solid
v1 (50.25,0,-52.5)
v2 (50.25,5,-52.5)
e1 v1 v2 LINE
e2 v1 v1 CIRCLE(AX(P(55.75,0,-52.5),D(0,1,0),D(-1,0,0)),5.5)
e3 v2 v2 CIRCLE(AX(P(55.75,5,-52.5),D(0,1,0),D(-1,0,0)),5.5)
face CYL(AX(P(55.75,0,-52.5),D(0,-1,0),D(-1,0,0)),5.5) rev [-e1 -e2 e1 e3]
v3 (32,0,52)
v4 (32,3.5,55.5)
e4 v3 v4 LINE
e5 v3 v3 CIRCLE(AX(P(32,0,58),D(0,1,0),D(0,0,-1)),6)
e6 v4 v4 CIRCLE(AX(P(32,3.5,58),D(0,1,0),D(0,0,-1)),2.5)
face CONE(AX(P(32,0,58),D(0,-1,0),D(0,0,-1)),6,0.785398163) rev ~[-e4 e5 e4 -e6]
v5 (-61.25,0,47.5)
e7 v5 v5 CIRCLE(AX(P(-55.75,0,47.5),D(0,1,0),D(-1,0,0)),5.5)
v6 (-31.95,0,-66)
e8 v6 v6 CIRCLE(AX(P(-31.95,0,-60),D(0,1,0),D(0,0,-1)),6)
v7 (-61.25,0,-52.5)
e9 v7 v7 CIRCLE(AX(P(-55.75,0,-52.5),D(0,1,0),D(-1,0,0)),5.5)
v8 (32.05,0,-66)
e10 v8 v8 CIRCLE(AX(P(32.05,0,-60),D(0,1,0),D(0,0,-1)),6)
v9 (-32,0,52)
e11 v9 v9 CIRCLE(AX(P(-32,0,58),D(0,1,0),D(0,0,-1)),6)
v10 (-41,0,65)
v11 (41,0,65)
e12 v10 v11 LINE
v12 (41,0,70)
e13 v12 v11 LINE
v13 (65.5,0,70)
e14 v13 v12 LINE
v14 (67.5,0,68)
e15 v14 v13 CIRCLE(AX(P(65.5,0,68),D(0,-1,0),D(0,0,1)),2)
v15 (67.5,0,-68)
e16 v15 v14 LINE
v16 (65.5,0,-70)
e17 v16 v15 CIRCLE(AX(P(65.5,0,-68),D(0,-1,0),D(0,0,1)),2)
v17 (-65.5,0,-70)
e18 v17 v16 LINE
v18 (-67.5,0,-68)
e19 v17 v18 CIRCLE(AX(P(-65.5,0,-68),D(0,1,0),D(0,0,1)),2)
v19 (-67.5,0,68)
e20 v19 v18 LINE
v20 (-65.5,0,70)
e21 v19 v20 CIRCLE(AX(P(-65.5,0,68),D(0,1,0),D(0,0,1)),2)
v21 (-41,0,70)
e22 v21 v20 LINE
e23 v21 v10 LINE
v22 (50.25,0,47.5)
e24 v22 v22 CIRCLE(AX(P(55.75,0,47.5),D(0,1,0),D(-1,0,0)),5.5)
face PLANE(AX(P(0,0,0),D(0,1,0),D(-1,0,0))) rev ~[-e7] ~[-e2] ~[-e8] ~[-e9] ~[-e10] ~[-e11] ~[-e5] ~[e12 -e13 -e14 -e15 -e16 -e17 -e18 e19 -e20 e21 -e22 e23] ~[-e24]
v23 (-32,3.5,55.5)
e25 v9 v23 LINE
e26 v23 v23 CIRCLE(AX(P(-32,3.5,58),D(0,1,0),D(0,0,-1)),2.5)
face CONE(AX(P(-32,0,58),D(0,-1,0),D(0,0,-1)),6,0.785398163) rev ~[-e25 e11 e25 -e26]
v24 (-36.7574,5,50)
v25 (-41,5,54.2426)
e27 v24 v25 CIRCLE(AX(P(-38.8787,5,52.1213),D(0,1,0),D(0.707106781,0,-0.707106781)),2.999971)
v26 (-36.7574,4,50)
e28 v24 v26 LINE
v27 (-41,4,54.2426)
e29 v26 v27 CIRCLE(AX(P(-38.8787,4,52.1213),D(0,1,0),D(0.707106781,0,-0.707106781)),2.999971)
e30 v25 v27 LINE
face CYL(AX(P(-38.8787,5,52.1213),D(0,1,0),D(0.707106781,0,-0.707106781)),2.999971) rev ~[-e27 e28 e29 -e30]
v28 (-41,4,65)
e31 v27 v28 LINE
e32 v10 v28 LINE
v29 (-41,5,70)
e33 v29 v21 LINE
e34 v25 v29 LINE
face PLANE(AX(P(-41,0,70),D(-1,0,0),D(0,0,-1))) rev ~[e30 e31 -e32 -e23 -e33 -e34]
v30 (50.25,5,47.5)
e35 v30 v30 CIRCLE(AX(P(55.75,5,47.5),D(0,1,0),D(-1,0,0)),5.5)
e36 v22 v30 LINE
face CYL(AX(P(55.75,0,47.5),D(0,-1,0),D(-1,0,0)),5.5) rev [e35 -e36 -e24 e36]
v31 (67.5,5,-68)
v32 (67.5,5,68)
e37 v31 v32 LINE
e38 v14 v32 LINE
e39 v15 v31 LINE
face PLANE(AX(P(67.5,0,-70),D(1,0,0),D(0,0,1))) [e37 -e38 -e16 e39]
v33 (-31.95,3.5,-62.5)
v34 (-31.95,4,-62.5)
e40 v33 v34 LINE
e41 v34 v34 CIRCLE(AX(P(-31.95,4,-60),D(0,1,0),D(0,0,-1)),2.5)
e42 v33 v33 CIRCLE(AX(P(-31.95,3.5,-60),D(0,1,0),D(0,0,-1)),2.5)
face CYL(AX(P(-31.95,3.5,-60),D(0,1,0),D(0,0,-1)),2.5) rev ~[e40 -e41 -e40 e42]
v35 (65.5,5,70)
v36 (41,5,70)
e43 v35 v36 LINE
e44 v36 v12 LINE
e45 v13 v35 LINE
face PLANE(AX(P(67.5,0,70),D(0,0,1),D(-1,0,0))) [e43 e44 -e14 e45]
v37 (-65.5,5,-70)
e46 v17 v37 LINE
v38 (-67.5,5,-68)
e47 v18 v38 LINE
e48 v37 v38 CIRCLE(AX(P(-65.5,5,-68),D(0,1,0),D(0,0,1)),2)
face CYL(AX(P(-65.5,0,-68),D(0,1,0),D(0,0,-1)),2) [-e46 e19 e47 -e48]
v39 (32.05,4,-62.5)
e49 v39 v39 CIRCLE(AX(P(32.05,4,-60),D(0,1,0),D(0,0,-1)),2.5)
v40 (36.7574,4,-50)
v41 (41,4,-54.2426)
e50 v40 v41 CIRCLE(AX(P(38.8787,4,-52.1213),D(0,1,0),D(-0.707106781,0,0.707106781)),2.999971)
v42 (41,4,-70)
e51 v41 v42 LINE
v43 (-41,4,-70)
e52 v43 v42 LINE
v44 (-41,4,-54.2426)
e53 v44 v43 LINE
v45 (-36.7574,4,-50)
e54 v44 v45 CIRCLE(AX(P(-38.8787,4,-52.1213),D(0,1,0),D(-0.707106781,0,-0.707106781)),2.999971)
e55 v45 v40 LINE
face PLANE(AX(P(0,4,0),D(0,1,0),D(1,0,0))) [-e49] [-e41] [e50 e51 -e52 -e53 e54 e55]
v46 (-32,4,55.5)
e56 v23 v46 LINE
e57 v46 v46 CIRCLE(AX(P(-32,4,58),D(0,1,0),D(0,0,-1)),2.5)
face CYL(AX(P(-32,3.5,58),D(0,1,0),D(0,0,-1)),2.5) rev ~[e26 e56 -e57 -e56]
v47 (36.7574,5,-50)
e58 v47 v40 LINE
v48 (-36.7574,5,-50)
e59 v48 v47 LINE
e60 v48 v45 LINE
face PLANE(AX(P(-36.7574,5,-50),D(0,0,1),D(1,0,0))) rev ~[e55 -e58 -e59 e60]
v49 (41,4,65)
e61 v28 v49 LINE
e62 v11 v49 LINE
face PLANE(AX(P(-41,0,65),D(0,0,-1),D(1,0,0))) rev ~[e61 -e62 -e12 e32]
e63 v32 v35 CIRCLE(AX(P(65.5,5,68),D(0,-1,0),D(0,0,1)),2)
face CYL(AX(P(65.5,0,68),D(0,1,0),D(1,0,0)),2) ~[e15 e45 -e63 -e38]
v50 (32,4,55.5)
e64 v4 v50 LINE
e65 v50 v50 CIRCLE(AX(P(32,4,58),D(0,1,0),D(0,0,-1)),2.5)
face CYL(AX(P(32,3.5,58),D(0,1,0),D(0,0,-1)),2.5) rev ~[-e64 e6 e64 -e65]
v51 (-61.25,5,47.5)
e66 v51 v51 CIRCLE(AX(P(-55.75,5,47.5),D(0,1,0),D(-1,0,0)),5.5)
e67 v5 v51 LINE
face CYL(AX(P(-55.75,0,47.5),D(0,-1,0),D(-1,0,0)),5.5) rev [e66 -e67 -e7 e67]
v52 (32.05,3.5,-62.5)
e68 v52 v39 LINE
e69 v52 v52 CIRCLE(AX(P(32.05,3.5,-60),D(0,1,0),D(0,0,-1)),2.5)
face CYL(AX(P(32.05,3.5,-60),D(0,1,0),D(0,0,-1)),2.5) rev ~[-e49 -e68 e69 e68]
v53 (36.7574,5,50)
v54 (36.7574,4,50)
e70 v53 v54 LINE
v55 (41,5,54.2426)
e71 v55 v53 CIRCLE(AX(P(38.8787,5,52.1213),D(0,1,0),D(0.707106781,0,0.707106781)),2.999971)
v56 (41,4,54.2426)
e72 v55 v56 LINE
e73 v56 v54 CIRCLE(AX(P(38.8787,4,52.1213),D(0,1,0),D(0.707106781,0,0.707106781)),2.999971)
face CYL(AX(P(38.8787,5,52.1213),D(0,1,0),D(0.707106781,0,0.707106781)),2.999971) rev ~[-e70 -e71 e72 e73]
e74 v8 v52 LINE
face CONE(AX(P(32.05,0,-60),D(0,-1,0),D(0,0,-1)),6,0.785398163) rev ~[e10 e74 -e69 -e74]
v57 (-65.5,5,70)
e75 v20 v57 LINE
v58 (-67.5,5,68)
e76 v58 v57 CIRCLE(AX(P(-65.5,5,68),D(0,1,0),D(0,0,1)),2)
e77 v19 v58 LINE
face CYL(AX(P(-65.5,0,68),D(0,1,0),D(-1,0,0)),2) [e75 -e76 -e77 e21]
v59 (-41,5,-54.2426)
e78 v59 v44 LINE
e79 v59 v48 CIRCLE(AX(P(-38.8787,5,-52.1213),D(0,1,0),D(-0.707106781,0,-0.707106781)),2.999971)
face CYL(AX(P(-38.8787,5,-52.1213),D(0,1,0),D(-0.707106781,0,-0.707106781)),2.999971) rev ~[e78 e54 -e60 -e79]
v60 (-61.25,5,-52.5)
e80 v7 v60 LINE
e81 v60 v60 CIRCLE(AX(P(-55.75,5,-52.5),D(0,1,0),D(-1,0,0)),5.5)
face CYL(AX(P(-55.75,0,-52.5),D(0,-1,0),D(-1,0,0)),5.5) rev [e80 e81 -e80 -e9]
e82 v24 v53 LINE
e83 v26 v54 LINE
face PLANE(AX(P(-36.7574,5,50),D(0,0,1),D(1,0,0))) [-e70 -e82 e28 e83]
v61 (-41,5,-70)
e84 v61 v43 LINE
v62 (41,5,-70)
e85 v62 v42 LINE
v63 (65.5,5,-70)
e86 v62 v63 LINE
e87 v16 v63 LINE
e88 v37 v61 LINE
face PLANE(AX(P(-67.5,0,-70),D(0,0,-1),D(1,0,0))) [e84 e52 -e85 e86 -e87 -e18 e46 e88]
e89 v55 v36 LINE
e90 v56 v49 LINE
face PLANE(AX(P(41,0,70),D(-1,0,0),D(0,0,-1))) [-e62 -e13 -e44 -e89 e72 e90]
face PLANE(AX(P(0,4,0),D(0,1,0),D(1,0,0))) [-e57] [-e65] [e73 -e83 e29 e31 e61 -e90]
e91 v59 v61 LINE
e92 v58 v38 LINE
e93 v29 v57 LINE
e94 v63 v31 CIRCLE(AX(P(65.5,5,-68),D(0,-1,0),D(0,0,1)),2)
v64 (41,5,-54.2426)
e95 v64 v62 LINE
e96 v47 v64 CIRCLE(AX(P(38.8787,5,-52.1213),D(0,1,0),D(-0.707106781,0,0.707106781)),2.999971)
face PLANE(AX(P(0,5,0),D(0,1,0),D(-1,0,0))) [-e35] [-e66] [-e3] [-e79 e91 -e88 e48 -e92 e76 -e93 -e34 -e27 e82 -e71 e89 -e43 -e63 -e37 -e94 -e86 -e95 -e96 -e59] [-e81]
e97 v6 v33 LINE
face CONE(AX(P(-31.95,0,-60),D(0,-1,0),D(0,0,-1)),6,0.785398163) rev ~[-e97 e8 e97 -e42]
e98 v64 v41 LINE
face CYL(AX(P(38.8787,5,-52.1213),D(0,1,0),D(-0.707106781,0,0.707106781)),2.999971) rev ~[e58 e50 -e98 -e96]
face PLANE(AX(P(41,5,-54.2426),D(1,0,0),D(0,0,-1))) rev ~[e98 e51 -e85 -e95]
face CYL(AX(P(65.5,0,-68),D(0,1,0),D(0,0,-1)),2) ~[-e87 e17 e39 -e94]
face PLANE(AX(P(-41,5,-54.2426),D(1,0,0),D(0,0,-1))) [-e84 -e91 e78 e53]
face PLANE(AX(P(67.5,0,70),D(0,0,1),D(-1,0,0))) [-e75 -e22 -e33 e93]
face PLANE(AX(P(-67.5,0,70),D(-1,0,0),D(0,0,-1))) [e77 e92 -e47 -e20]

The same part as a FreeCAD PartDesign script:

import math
import FreeCAD as App
import Part
import Sketcher
from FreeCAD import Vector


def edges_at(feature, points):
    """Names of the edges that pass closest to the given points."""
    edges = feature.Shape.Edges
    near = lambda p: min(range(len(edges)), key=lambda i: edges[i].distToShape(Part.Vertex(*p))[0])
    return sorted({f"Edge{near(p) + 1}" for p in points})


def add_polygon(sketch, points):
    """Adds a closed chain of lines whose ends are joined by coincident constraints."""
    first, n = sketch.GeometryCount, len(points)
    for a, b in zip(points, points[1:] + points[:1]):
        sketch.addGeometry(Part.LineSegment(App.Vector(*a, 0), App.Vector(*b, 0)), False)
    for i in range(n):
        sketch.addConstraint(Sketcher.Constraint("Coincident", first + i, 2, first + (i + 1) % n, 1))

doc = App.newDocument("Part")
body = doc.addObject("PartDesign::Body", "Body")

sketch1 = body.newObject("Sketcher::SketchObject", "Sketch")
sketch1.AttachmentSupport = (doc.getObject("XZ_Plane"), [""])
sketch1.MapMode = "FlatFace"
add_polygon(sketch1, [(68, -70), (-68, -70), (-68, 70), (68, 70)])
sketch1.addGeometry(Part.Circle(Vector(56, -52, 0), Vector(0, 0, 1), 6), False)
sketch1.addGeometry(Part.Circle(Vector(-56, -52, 0), Vector(0, 0, 1), 6), False)
sketch1.addGeometry(Part.Circle(Vector(56, 48, 0), Vector(0, 0, 1), 6), False)
sketch1.addGeometry(Part.Circle(Vector(-56, 48, 0), Vector(0, 0, 1), 6), False)
sketch1.addConstraint([
    Sketcher.Constraint("Horizontal", 0),
    Sketcher.Constraint("Vertical", 1),
    Sketcher.Constraint("Horizontal", 2),
    Sketcher.Constraint("Vertical", 3),
    Sketcher.Constraint("Equal", 4, 5),
    Sketcher.Constraint("Equal", 5, 6),
    Sketcher.Constraint("Equal", 6, 7),
    Sketcher.Constraint("Symmetric", 0, 2, 2, 2, -1, 1),
    Sketcher.Constraint("Symmetric", 4, 3, 5, 3, -2),
    Sketcher.Constraint("Symmetric", 6, 3, 7, 3, -2),
    Sketcher.Constraint("Vertical", 4, 3, 6, 3),
    Sketcher.Constraint("Diameter", 4, 11.0),
    Sketcher.Constraint("DistanceX", 0, 2, 0, 1, 135.0),
    Sketcher.Constraint("DistanceY", 1, 1, 1, 2, 140.0),
    Sketcher.Constraint("DistanceY", 4, 3, 6, 3, 100.0),
    Sketcher.Constraint("DistanceX", 5, 3, 4, 3, 111.5),
    Sketcher.Constraint("DistanceY", 7, 3, 1, 2, 22.5),
])
pad1 = body.newObject("PartDesign::Pad", "Pad")
pad1.Profile = sketch1
pad1.Length = 5
pad1.Reversed = True

sketch2 = body.newObject("Sketcher::SketchObject", "Sketch001")
sketch2.AttachmentSupport = (doc.getObject("XZ_Plane"), [""])
sketch2.MapMode = "FlatFace"
sketch2.AttachmentOffset = App.Placement(Vector(0, 0, -5), App.Rotation())
sketch2.addGeometry([
    Part.LineSegment(Vector(-41, 54.2, 0), Vector(-41, 70, 0)),
    Part.LineSegment(Vector(-41, 70, 0), Vector(41, 70, 0)),
    Part.LineSegment(Vector(41, 70, 0), Vector(41, 54.2, 0)),
    Part.ArcOfCircle(Part.Circle(Vector(38.9, 52.1, 0), Vector(0, 0, 1), 3), math.radians(-135), math.radians(45)),
    Part.LineSegment(Vector(36.8, 50, 0), Vector(-36.8, 50, 0)),
    Part.ArcOfCircle(Part.Circle(Vector(-38.9, 52.1, 0), Vector(0, 0, 1), 3), math.radians(135), math.radians(315)),
    Part.LineSegment(Vector(41, -70, 0), Vector(-41, -70, 0)),
    Part.LineSegment(Vector(-41, -70, 0), Vector(-41, -54.2, 0)),
    Part.ArcOfCircle(Part.Circle(Vector(-38.9, -52.1, 0), Vector(0, 0, 1), 3), math.radians(45), math.radians(225)),
    Part.LineSegment(Vector(-36.8, -50, 0), Vector(36.8, -50, 0)),
    Part.ArcOfCircle(Part.Circle(Vector(38.9, -52.1, 0), Vector(0, 0, 1), 3), math.radians(-45), math.radians(135)),
    Part.LineSegment(Vector(41, -54.2, 0), Vector(41, -70, 0)),
], False)
sketch2.addConstraint([
    Sketcher.Constraint("Coincident", 0, 2, 1, 1),
    Sketcher.Constraint("Coincident", 1, 2, 2, 1),
    Sketcher.Constraint("Coincident", 2, 2, 3, 2),
    Sketcher.Constraint("Coincident", 3, 1, 4, 1),
    Sketcher.Constraint("Coincident", 4, 2, 5, 2),
    Sketcher.Constraint("Coincident", 5, 1, 0, 1),
    Sketcher.Constraint("Coincident", 6, 2, 7, 1),
    Sketcher.Constraint("Coincident", 7, 2, 8, 2),
    Sketcher.Constraint("Coincident", 8, 1, 9, 1),
    Sketcher.Constraint("Coincident", 9, 2, 10, 2),
    Sketcher.Constraint("Coincident", 10, 1, 11, 1),
    Sketcher.Constraint("Coincident", 11, 2, 6, 1),
    Sketcher.Constraint("Vertical", 0),
    Sketcher.Constraint("Horizontal", 1),
    Sketcher.Constraint("Vertical", 2),
    Sketcher.Constraint("Horizontal", 4),
    Sketcher.Constraint("Horizontal", 6),
    Sketcher.Constraint("Vertical", 7),
    Sketcher.Constraint("Horizontal", 9),
    Sketcher.Constraint("Vertical", 11),
    Sketcher.Constraint("Equal", 3, 5),
    Sketcher.Constraint("Equal", 5, 8),
    Sketcher.Constraint("Equal", 8, 10),
    Sketcher.Constraint("Symmetric", 3, 3, 8, 3, -1, 1),
    Sketcher.Constraint("Symmetric", 5, 3, 10, 3, -1, 1),
    Sketcher.Constraint("Symmetric", 1, 2, 6, 2, -1, 1),
    Sketcher.Constraint("Symmetric", 3, 3, 5, 3, -2),
    Sketcher.Constraint("Horizontal", 2, 2, 5, 1),
    Sketcher.Constraint("Horizontal", 7, 2, 10, 1),
    Sketcher.Constraint("Vertical", 4, 2, 8, 1),
    Sketcher.Constraint("Radius", 3, 3.0),
    Sketcher.Constraint("DistanceX", 1, 1, 1, 2, 82.0),
    Sketcher.Constraint("DistanceY", 3, 1, 1, 2, 20.0),
    Sketcher.Constraint("DistanceY", 6, 2, 4, 2, 120.0),
    Sketcher.Constraint("DistanceX", 4, 2, 4, 1, 73.5148),
    Sketcher.Constraint("DistanceY", 10, 3, 2, 2, 106.364),
])
pocket1 = body.newObject("PartDesign::Pocket", "Pocket")
pocket1.Profile = sketch2
pocket1.Length = 1
pocket1.Reversed = True
doc.recompute()

fillet = body.newObject("PartDesign::Fillet", "Fillet")
fillet.Base = (pocket1, edges_at(pocket1, [
    (67.5, 2.5, 70),
    (-67.5, 2.5, 70),
    (-67.5, 2.5, -70),
    (67.5, 2.5, -70),
]))
fillet.Radius = 2

sketch3 = body.newObject("Sketcher::SketchObject", "Sketch002")
sketch3.AttachmentSupport = (doc.getObject("XZ_Plane"), [""])
sketch3.MapMode = "FlatFace"
add_polygon(sketch3, [(41, 70), (-41, 70), (-41, 65), (41, 65)])
sketch3.addConstraint([
    Sketcher.Constraint("Horizontal", 0),
    Sketcher.Constraint("Vertical", 1),
    Sketcher.Constraint("Horizontal", 2),
    Sketcher.Constraint("Vertical", 3),
    Sketcher.Constraint("DistanceX", 0, 2, 0, 1, 82.0),
    Sketcher.Constraint("DistanceY", 1, 2, 1, 1, 5.0),
    Sketcher.Constraint("DistanceX", 0, 2, -1, 1, 41.0),
    Sketcher.Constraint("DistanceY", -1, 1, 0, 2, 70.0),
])
pocket2 = body.newObject("PartDesign::Pocket", "Pocket001")
pocket2.Profile = sketch3
pocket2.Type = "UpToFirst"

sketch4 = body.newObject("Sketcher::SketchObject", "Sketch003")
sketch4.AttachmentSupport = (doc.getObject("XZ_Plane"), [""])
sketch4.MapMode = "FlatFace"
sketch4.addGeometry([
    Part.Circle(Vector(32, 58, 0), Vector(0, 0, 1), 2.5),
    Part.Circle(Vector(-32, 58, 0), Vector(0, 0, 1), 2.5),
    Part.Circle(Vector(-31.9, -60, 0), Vector(0, 0, 1), 2.5),
    Part.Circle(Vector(32, -60, 0), Vector(0, 0, 1), 2.5),
], False)
sketch4.addConstraint([
    Sketcher.Constraint("Equal", 0, 1),
    Sketcher.Constraint("Equal", 1, 2),
    Sketcher.Constraint("Equal", 2, 3),
    Sketcher.Constraint("Symmetric", 0, 3, 1, 3, -2),
    Sketcher.Constraint("Horizontal", 2, 3, 3, 3),
    Sketcher.Constraint("Diameter", 0, 5.0),
    Sketcher.Constraint("DistanceX", -1, 1, 0, 3, 32.0),
    Sketcher.Constraint("DistanceY", -1, 1, 0, 3, 58.0),
    Sketcher.Constraint("DistanceY", 2, 3, -1, 1, 60.0),
    Sketcher.Constraint("DistanceX", 2, 3, 3, 3, 64.0),
    Sketcher.Constraint("DistanceX", 2, 3, -1, 1, 31.95),
])
doc.recompute()
hole = body.newObject("PartDesign::Hole", "Hole")
hole.Profile = sketch4
hole.ThreadType = "None"
hole.Diameter = 5
hole.DepthType = "ThroughAll"
hole.HoleCutType = "Countersink"
hole.HoleCutDiameter = 12
hole.HoleCutCountersinkAngle = 90

doc.recompute()
